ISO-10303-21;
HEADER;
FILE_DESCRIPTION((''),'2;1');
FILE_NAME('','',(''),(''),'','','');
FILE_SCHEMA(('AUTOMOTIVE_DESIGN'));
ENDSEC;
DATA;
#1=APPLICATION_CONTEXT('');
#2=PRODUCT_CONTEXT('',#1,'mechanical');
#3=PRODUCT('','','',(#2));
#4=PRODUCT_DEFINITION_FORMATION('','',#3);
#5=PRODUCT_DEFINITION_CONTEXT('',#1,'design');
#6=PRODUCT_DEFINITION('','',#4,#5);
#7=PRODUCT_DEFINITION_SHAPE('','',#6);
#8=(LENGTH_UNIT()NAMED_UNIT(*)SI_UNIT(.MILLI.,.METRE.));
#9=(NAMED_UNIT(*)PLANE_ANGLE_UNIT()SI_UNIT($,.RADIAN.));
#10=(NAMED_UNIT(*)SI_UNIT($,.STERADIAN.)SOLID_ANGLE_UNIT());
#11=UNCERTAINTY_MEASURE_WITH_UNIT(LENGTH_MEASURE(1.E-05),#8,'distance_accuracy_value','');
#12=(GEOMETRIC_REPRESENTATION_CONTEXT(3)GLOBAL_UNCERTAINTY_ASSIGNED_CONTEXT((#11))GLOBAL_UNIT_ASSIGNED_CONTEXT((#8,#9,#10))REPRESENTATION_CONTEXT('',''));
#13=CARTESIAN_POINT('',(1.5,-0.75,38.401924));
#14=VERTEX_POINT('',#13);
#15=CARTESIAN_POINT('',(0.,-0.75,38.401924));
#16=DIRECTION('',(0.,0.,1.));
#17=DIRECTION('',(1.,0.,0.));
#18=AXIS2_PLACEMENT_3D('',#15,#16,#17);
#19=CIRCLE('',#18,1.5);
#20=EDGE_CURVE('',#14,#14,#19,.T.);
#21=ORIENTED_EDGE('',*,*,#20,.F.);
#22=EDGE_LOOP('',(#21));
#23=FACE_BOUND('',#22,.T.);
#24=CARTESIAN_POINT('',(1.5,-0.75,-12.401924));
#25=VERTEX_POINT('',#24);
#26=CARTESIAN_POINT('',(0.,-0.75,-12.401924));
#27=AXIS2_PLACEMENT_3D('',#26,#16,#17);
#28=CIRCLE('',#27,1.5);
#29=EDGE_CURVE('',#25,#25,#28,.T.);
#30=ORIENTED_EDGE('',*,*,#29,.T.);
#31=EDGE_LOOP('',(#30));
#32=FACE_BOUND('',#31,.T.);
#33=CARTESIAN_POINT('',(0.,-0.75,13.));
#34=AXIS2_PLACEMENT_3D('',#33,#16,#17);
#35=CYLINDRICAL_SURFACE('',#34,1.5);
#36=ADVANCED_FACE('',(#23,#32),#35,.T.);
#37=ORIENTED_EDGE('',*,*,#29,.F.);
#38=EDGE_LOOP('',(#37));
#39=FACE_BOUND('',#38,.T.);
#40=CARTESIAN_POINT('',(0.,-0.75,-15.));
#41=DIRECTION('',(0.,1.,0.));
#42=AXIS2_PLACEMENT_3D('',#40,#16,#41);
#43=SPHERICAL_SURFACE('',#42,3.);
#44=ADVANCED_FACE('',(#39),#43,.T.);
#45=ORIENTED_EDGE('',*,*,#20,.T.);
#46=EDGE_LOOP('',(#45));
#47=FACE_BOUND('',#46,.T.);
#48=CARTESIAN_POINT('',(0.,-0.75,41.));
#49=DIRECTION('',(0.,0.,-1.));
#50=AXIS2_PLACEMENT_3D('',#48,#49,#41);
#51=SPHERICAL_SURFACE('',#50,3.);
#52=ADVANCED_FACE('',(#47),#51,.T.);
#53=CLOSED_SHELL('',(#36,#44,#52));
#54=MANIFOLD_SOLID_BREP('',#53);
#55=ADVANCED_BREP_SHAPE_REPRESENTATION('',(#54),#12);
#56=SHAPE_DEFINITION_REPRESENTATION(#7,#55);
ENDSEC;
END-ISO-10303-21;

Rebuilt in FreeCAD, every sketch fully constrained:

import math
import FreeCAD as App
import Part
import Sketcher
Q = App.Units.Quantity

doc = App.newDocument("Part")
body = doc.addObject("PartDesign::Body", "Body")

# Sketch on YZ plane
sketch1 = body.newObject("Sketcher::SketchObject", "Sketch")
sketch1.AttachmentSupport = (doc.getObject("YZ_Plane"), [""])
sketch1.MapMode = "FlatFace"
sketch1.addGeometry([
    Part.ArcOfCircle(Part.Circle(App.Vector(-0.75, -15, 0), App.Vector(0, 0, 1), 3), math.radians(-90), math.radians(60)),
    Part.LineSegment(App.Vector(0.75, -12.401924, 0), App.Vector(0.75, 13, 0)),
    Part.LineSegment(App.Vector(0.75, 13, 0), App.Vector(-0.75, 13, 0)),
    Part.LineSegment(App.Vector(-0.75, 13, 0), App.Vector(-0.75, -18, 0)),
], False)
sketch1.addGeometry(Part.LineSegment(App.Vector(-0.75, 13, 0), App.Vector(-0.75, -18, 0)), True)  # axis
sketch1.addConstraint([
    Sketcher.Constraint("Coincident", 0, 2, 1, 1),
    Sketcher.Constraint("Coincident", 1, 2, 2, 1),
    Sketcher.Constraint("Coincident", 2, 2, 3, 1),
    Sketcher.Constraint("Coincident", 3, 2, 0, 1),
    Sketcher.Constraint("Vertical", 1),
    Sketcher.Constraint("Horizontal", 2),
    Sketcher.Constraint("Vertical", 3),
    Sketcher.Constraint("Vertical", 4),
    Sketcher.Constraint("Coincident", 4, 1, 2, 2),
    Sketcher.Constraint("Vertical", 0, 3, 2, 2),
    Sketcher.Constraint("Equal", 3, 4),
    Sketcher.Constraint("Radius", 0, Q("3 mm")),
    Sketcher.Constraint("DistanceY", 3, 2, 3, 1, Q("31 mm")),
    Sketcher.Constraint("DistanceX", 2, 2, 2, 1, Q("1.5 mm")),
    Sketcher.Constraint("DistanceY", 0, 3, -1, 1, Q("15 mm")),
    Sketcher.Constraint("DistanceX", 0, 3, -1, 1, Q("0.75 mm")),
])
revolution = body.newObject("PartDesign::Revolution", "Revolution")
revolution.Profile = sketch1
revolution.ReferenceAxis = (sketch1, ["Axis0"])
revolution.Angle = 360
doc.recompute()

datumplane = body.newObject("PartDesign::Plane", "DatumPlane")
datumplane.AttachmentSupport = (doc.getObject("XY_Plane"), [""])
datumplane.MapMode = "FlatFace"
datumplane.AttachmentOffset = App.Placement(App.Vector(0, 0, 13), App.Rotation())
mirrored = body.newObject("PartDesign::Mirrored", "Mirrored")
mirrored.Originals = [revolution]
mirrored.MirrorPlane = (datumplane, [""])
body.Tip = mirrored

doc.recompute()
